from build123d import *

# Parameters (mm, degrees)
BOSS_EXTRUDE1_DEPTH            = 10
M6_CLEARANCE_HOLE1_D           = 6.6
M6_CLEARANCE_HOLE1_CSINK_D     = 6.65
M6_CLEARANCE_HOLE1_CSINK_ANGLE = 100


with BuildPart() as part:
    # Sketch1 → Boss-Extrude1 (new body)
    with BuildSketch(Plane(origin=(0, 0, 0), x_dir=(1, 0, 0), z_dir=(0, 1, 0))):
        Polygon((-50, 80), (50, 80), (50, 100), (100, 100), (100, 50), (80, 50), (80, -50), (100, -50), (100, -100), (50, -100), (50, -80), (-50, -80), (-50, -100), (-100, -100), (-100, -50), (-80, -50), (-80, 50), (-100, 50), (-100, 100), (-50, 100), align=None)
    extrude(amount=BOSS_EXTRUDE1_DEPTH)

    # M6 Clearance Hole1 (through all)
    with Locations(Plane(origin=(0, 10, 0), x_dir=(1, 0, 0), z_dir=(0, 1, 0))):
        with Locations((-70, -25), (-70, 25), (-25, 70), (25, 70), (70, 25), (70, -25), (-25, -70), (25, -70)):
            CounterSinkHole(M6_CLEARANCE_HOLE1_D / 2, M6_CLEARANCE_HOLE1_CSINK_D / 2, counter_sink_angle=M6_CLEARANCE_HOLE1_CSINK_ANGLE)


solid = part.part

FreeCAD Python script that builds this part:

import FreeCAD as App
import Part
import Sketcher
from FreeCAD import Vector

doc = App.newDocument("Part")
body = doc.addObject("PartDesign::Body", "Body")

# Sketch on XZ plane
sketch1 = body.newObject("Sketcher::SketchObject", "Sketch")
sketch1.AttachmentSupport = (doc.getObject("XZ_Plane"), [""])
sketch1.MapMode = "FlatFace"
sketch1.addGeometry(Part.LineSegment(Vector(50, -80, 0), Vector(-50, -80, 0)), False)
sketch1.addGeometry(Part.LineSegment(Vector(-50, -80, 0), Vector(-50, -100, 0)), False)
sketch1.addGeometry(Part.LineSegment(Vector(-50, -100, 0), Vector(-100, -100, 0)), False)
sketch1.addGeometry(Part.LineSegment(Vector(-100, -100, 0), Vector(-100, -50, 0)), False)
sketch1.addGeometry(Part.LineSegment(Vector(-100, -50, 0), Vector(-80, -50, 0)), False)
sketch1.addGeometry(Part.LineSegment(Vector(-80, -50, 0), Vector(-80, 50, 0)), False)
sketch1.addGeometry(Part.LineSegment(Vector(-80, 50, 0), Vector(-100, 50, 0)), False)
sketch1.addGeometry(Part.LineSegment(Vector(-100, 50, 0), Vector(-100, 100, 0)), False)
sketch1.addGeometry(Part.LineSegment(Vector(-100, 100, 0), Vector(-50, 100, 0)), False)
sketch1.addGeometry(Part.LineSegment(Vector(-50, 100, 0), Vector(-50, 80, 0)), False)
sketch1.addGeometry(Part.LineSegment(Vector(-50, 80, 0), Vector(50, 80, 0)), False)
sketch1.addGeometry(Part.LineSegment(Vector(50, 80, 0), Vector(50, 100, 0)), False)
sketch1.addGeometry(Part.LineSegment(Vector(50, 100, 0), Vector(100, 100, 0)), False)
sketch1.addGeometry(Part.LineSegment(Vector(100, 100, 0), Vector(100, 50, 0)), False)
sketch1.addGeometry(Part.LineSegment(Vector(100, 50, 0), Vector(80, 50, 0)), False)
sketch1.addGeometry(Part.LineSegment(Vector(80, 50, 0), Vector(80, -50, 0)), False)
sketch1.addGeometry(Part.LineSegment(Vector(80, -50, 0), Vector(100, -50, 0)), False)
sketch1.addGeometry(Part.LineSegment(Vector(100, -50, 0), Vector(100, -100, 0)), False)
sketch1.addGeometry(Part.LineSegment(Vector(100, -100, 0), Vector(50, -100, 0)), False)
sketch1.addGeometry(Part.LineSegment(Vector(50, -100, 0), Vector(50, -80, 0)), False)
sketch1.addConstraint(Sketcher.Constraint("Coincident", 0, 2, 1, 1))
sketch1.addConstraint(Sketcher.Constraint("Coincident", 1, 2, 2, 1))
sketch1.addConstraint(Sketcher.Constraint("Coincident", 2, 2, 3, 1))
sketch1.addConstraint(Sketcher.Constraint("Coincident", 3, 2, 4, 1))
sketch1.addConstraint(Sketcher.Constraint("Coincident", 4, 2, 5, 1))
sketch1.addConstraint(Sketcher.Constraint("Coincident", 5, 2, 6, 1))
sketch1.addConstraint(Sketcher.Constraint("Coincident", 6, 2, 7, 1))
sketch1.addConstraint(Sketcher.Constraint("Coincident", 7, 2, 8, 1))
sketch1.addConstraint(Sketcher.Constraint("Coincident", 8, 2, 9, 1))
sketch1.addConstraint(Sketcher.Constraint("Coincident", 9, 2, 10, 1))
sketch1.addConstraint(Sketcher.Constraint("Coincident", 10, 2, 11, 1))
sketch1.addConstraint(Sketcher.Constraint("Coincident", 11, 2, 12, 1))
sketch1.addConstraint(Sketcher.Constraint("Coincident", 12, 2, 13, 1))
sketch1.addConstraint(Sketcher.Constraint("Coincident", 13, 2, 14, 1))
sketch1.addConstraint(Sketcher.Constraint("Coincident", 14, 2, 15, 1))
sketch1.addConstraint(Sketcher.Constraint("Coincident", 15, 2, 16, 1))
sketch1.addConstraint(Sketcher.Constraint("Coincident", 16, 2, 17, 1))
sketch1.addConstraint(Sketcher.Constraint("Coincident", 17, 2, 18, 1))
sketch1.addConstraint(Sketcher.Constraint("Coincident", 18, 2, 19, 1))
sketch1.addConstraint(Sketcher.Constraint("Coincident", 19, 2, 0, 1))
sketch1.addConstraint(Sketcher.Constraint("Horizontal", 0))
sketch1.addConstraint(Sketcher.Constraint("Vertical", 1))
sketch1.addConstraint(Sketcher.Constraint("Horizontal", 2))
sketch1.addConstraint(Sketcher.Constraint("Vertical", 3))
sketch1.addConstraint(Sketcher.Constraint("Horizontal", 4))
sketch1.addConstraint(Sketcher.Constraint("Vertical", 5))
sketch1.addConstraint(Sketcher.Constraint("Horizontal", 6))
sketch1.addConstraint(Sketcher.Constraint("Vertical", 7))
sketch1.addConstraint(Sketcher.Constraint("Horizontal", 8))
sketch1.addConstraint(Sketcher.Constraint("Vertical", 9))
sketch1.addConstraint(Sketcher.Constraint("Horizontal", 10))
sketch1.addConstraint(Sketcher.Constraint("Vertical", 11))
sketch1.addConstraint(Sketcher.Constraint("Horizontal", 12))
sketch1.addConstraint(Sketcher.Constraint("Vertical", 13))
sketch1.addConstraint(Sketcher.Constraint("Horizontal", 14))
sketch1.addConstraint(Sketcher.Constraint("Vertical", 15))
sketch1.addConstraint(Sketcher.Constraint("Horizontal", 16))
sketch1.addConstraint(Sketcher.Constraint("Vertical", 17))
sketch1.addConstraint(Sketcher.Constraint("Horizontal", 18))
sketch1.addConstraint(Sketcher.Constraint("Vertical", 19))
sketch1.addConstraint(Sketcher.Constraint("Symmetric", 0, 2, 10, 2, -1, 1))
sketch1.addConstraint(Sketcher.Constraint("Symmetric", 2, 2, 12, 2, -1, 1))
sketch1.addConstraint(Sketcher.Constraint("Symmetric", 4, 2, 14, 2, -1, 1))
sketch1.addConstraint(Sketcher.Constraint("Symmetric", 6, 2, 16, 2, -1, 1))
sketch1.addConstraint(Sketcher.Constraint("Symmetric", 8, 2, 18, 2, -1, 1))
sketch1.addConstraint(Sketcher.Constraint("Symmetric", 8, 2, 11, 2, -2))
sketch1.addConstraint(Sketcher.Constraint("Symmetric", 6, 2, 13, 2, -2))
sketch1.addConstraint(Sketcher.Constraint("Equal", 16, 1))
sketch1.addConstraint(Sketcher.Constraint("Equal", 18, 3))
sketch1.addConstraint(Sketcher.Constraint("Equal", 10, 5))
sketch1.addConstraint(Sketcher.Constraint("DistanceX", 0, 2, 0, 1, 100.0))
sketch1.addConstraint(Sketcher.Constraint("DistanceX", 2, 2, 2, 1, 50.0))
sketch1.addConstraint(Sketcher.Constraint("DistanceX", 4, 1, 4, 2, 20.0))
pad1 = body.newObject("PartDesign::Pad", "Pad")
pad1.Profile = sketch1
pad1.Length = 10
pad1.Reversed = True

# Sketch on XZ plane
sketch2 = body.newObject("Sketcher::SketchObject", "Sketch001")
sketch2.AttachmentSupport = (doc.getObject("XZ_Plane"), [""])
sketch2.MapMode = "FlatFace"
sketch2.AttachmentOffset = App.Placement(Vector(0, 0, -10), App.Rotation())
sketch2.addGeometry(Part.Circle(Vector(-70, 25, 0), Vector(0, 0, 1), 3.3), False)
sketch2.addGeometry(Part.Circle(Vector(-70, -25, 0), Vector(0, 0, 1), 3.3), False)
sketch2.addGeometry(Part.Circle(Vector(-25, -70, 0), Vector(0, 0, 1), 3.3), False)
sketch2.addGeometry(Part.Circle(Vector(25, -70, 0), Vector(0, 0, 1), 3.3), False)
sketch2.addGeometry(Part.Circle(Vector(70, -25, 0), Vector(0, 0, 1), 3.3), False)
sketch2.addGeometry(Part.Circle(Vector(70, 25, 0), Vector(0, 0, 1), 3.3), False)
sketch2.addGeometry(Part.Circle(Vector(-25, 70, 0), Vector(0, 0, 1), 3.3), False)
sketch2.addGeometry(Part.Circle(Vector(25, 70, 0), Vector(0, 0, 1), 3.3), False)
sketch2.addConstraint(Sketcher.Constraint("Equal", 0, 1))
sketch2.addConstraint(Sketcher.Constraint("Equal", 1, 2))
sketch2.addConstraint(Sketcher.Constraint("Equal", 2, 3))
sketch2.addConstraint(Sketcher.Constraint("Equal", 3, 4))
sketch2.addConstraint(Sketcher.Constraint("Equal", 4, 5))
sketch2.addConstraint(Sketcher.Constraint("Equal", 5, 6))
sketch2.addConstraint(Sketcher.Constraint("Equal", 6, 7))
sketch2.addConstraint(Sketcher.Constraint("Symmetric", 0, 3, 4, 3, -1, 1))
sketch2.addConstraint(Sketcher.Constraint("Symmetric", 1, 3, 5, 3, -1, 1))
sketch2.addConstraint(Sketcher.Constraint("Symmetric", 3, 3, 6, 3, -1, 1))
sketch2.addConstraint(Sketcher.Constraint("Symmetric", 2, 3, 7, 3, -1, 1))
sketch2.addConstraint(Sketcher.Constraint("Symmetric", 2, 3, 3, 3, -2))
sketch2.addConstraint(Sketcher.Constraint("Symmetric", 1, 3, 4, 3, -2))
sketch2.addConstraint(Sketcher.Constraint("Diameter", 0, 6.6))
sketch2.addConstraint(Sketcher.Constraint("DistanceX", 0, 3, -1, 1, 70.0))
sketch2.addConstraint(Sketcher.Constraint("DistanceY", -1, 1, 0, 3, 25.0))
sketch2.addConstraint(Sketcher.Constraint("DistanceX", 2, 3, -1, 1, 25.0))
sketch2.addConstraint(Sketcher.Constraint("DistanceY", 2, 3, -1, 1, 70.0))
doc.recompute()
hole = body.newObject("PartDesign::Hole", "Hole")
hole.Profile = sketch2
hole.ThreadType = "None"
hole.Diameter = 6.6
hole.DepthType = "ThroughAll"
hole.HoleCutType = "Countersink"
hole.HoleCutDiameter = 6.65
hole.HoleCutCountersinkAngle = 100
hole.Reversed = True

doc.recompute()
